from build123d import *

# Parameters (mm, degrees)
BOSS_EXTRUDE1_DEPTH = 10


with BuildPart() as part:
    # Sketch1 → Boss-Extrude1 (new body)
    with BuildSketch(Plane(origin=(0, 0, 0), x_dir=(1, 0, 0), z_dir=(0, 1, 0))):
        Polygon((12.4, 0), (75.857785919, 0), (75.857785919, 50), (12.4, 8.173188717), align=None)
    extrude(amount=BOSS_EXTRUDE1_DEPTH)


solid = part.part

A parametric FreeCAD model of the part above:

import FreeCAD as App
import Part
import Sketcher
Q = App.Units.Quantity

doc = App.newDocument("Part")
body = doc.addObject("PartDesign::Body", "Body")

sketch1 = body.newObject("Sketcher::SketchObject", "Sketch")
sketch1.AttachmentSupport = (doc.getObject("XZ_Plane"), [""])
sketch1.MapMode = "FlatFace"
sketch1.addGeometry([
    Part.LineSegment(App.Vector(12, 0, 0), App.Vector(76, 0, 0)),
    Part.LineSegment(App.Vector(76, 0, 0), App.Vector(76, -50, 0)),
    Part.LineSegment(App.Vector(76, -50, 0), App.Vector(12, -8, 0)),
    Part.LineSegment(App.Vector(12, -8, 0), App.Vector(12, 0, 0)),
], False)
sketch1.addConstraint([
    Sketcher.Constraint("Coincident", 0, 2, 1, 1),
    Sketcher.Constraint("Coincident", 1, 2, 2, 1),
    Sketcher.Constraint("Coincident", 2, 2, 3, 1),
    Sketcher.Constraint("Coincident", 3, 2, 0, 1),
    Sketcher.Constraint("Horizontal", 0),
    Sketcher.Constraint("Vertical", 1),
    Sketcher.Constraint("Vertical", 3),
    Sketcher.Constraint("PointOnObject", 0, 2, -1),
    Sketcher.Constraint("DistanceY", 1, 2, 1, 1, 50.0),
    Sketcher.Constraint("DistanceX", -1, 1, 2, 2, 12.4),
    Sketcher.Constraint("Angle", 2, Q("146.61 deg")),
    Sketcher.Constraint("DistanceY", 3, 1, 3, 2, 8.173189),
])
pad1 = body.newObject("PartDesign::Pad", "Pad")
pad1.Profile = sketch1
pad1.Length = 10
pad1.Reversed = True

doc.recompute()
